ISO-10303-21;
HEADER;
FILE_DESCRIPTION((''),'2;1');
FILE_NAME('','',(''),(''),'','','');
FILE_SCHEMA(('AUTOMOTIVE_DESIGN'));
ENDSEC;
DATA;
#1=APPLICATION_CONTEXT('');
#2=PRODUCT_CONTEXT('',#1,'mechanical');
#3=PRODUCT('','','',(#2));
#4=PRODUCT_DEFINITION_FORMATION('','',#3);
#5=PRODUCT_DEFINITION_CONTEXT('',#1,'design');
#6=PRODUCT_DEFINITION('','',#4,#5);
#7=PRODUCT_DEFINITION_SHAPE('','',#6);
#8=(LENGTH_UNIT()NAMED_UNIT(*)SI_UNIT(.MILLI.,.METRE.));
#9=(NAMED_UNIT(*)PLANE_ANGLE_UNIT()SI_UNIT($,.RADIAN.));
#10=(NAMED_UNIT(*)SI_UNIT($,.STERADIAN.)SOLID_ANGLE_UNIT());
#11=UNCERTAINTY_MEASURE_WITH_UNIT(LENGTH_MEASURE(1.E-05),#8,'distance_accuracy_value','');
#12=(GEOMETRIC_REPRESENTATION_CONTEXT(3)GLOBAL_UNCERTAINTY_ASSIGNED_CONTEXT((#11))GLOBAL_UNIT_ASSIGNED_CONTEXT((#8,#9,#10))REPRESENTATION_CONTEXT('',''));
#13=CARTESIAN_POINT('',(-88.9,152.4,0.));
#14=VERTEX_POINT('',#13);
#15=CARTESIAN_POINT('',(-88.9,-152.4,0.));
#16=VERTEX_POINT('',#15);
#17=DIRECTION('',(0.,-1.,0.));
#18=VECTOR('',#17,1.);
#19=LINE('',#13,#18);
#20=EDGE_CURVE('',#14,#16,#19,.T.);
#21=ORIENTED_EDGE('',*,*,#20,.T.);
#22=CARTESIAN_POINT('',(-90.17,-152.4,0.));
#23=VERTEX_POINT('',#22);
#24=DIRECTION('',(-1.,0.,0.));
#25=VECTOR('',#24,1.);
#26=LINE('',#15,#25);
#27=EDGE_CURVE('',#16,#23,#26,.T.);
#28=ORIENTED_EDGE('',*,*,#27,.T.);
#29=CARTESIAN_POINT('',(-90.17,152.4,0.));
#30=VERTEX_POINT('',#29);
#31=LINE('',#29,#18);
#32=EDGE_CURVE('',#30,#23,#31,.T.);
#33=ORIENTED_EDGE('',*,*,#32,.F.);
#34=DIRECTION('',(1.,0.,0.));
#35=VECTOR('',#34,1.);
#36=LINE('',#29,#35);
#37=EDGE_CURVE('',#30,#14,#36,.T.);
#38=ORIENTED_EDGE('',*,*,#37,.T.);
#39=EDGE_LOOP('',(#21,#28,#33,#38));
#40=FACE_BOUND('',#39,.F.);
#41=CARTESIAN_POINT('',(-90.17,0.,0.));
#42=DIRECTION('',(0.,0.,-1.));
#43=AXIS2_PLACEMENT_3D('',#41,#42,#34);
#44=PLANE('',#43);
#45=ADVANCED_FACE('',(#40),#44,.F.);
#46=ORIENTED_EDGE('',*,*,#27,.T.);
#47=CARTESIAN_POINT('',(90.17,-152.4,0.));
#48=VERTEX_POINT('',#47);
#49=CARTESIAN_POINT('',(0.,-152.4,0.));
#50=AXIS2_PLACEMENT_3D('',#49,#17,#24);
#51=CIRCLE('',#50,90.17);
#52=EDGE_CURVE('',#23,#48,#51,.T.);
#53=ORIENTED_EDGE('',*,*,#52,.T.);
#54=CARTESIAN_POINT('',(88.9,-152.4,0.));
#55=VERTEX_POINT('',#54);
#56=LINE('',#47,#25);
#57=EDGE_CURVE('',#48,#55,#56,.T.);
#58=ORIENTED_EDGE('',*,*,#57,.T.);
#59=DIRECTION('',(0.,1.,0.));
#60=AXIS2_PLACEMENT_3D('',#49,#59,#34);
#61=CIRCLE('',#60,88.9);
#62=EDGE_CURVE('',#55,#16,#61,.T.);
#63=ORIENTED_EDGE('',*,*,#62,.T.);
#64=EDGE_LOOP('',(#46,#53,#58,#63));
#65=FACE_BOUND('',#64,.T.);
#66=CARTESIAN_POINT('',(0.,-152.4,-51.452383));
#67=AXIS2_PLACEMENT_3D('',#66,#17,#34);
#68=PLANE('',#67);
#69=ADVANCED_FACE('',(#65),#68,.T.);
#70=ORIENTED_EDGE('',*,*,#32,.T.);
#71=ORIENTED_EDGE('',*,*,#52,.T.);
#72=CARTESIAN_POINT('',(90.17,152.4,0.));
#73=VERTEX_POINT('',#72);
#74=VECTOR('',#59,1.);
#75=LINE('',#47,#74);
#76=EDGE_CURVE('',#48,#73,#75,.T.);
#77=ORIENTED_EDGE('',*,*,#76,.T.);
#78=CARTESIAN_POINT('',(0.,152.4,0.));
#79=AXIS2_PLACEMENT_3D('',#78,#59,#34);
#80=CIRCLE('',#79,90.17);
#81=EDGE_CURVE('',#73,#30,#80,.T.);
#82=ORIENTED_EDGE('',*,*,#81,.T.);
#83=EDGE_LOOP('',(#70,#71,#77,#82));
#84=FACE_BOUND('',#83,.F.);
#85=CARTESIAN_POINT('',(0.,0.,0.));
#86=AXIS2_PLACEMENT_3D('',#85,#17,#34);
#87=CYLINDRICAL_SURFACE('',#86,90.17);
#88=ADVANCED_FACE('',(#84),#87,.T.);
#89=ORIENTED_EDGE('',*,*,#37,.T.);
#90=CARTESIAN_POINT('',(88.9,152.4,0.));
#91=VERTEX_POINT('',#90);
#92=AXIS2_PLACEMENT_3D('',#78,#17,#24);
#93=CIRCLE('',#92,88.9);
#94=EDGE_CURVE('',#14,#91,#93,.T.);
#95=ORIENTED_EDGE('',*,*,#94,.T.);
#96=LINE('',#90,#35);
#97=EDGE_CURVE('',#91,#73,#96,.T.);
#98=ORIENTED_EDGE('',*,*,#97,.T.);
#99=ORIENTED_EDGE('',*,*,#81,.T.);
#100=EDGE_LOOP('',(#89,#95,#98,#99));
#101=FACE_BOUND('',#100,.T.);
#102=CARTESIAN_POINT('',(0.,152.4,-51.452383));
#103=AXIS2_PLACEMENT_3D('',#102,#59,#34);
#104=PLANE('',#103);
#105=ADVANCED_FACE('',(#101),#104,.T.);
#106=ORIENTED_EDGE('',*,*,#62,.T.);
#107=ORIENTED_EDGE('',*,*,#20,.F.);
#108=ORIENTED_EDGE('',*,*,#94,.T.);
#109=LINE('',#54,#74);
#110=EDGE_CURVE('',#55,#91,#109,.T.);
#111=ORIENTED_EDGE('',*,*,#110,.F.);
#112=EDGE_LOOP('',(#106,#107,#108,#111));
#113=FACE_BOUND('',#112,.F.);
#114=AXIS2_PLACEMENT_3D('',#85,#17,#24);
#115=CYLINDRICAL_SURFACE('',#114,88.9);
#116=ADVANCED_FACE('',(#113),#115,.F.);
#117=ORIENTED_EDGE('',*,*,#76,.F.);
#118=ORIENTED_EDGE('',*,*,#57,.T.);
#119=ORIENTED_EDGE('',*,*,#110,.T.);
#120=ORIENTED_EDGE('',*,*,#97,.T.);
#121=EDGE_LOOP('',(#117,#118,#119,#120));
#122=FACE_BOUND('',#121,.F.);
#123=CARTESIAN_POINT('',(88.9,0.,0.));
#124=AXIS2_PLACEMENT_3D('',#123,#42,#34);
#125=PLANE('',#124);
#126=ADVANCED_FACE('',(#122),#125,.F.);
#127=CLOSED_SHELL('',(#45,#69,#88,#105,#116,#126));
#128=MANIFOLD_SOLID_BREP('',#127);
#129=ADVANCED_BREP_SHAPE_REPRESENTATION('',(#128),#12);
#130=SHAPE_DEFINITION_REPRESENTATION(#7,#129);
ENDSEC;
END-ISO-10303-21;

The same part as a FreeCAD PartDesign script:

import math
import FreeCAD as App
import Part
import Sketcher
Q = App.Units.Quantity

doc = App.newDocument("Part")
body = doc.addObject("PartDesign::Body", "Body")

# Sketch on XZ plane
sketch1 = doc.addObject("Sketcher::SketchObject", "Sketch")
body.addObject(sketch1)
sketch1.AttachmentSupport = (doc.XZ_Plane, [""])
sketch1.MapMode = "FlatFace"
sketch1.addGeometry([
    Part.LineSegment(App.Vector(-88.9, 0, 0), App.Vector(-90.2, 0, 0)),
    Part.ArcOfCircle(Part.Circle(App.Vector(0, 0, 0), App.Vector(0, 0, 1), 90.2), math.radians(180), math.radians(360)),
    Part.LineSegment(App.Vector(90.2, 0, 0), App.Vector(88.9, 0, 0)),
    Part.ArcOfCircle(Part.Circle(App.Vector(0, 0, 0), App.Vector(0, 0, 1), 88.9), math.radians(180), math.radians(360)),
], False)
sketch1.addConstraint([
    Sketcher.Constraint("Coincident", 0, 2, 1, 1),
    Sketcher.Constraint("Coincident", 1, 2, 2, 1),
    Sketcher.Constraint("Coincident", 2, 2, 3, 2),
    Sketcher.Constraint("Coincident", 3, 1, 0, 1),
    Sketcher.Constraint("Horizontal", 0),
    Sketcher.Constraint("Horizontal", 2),
    Sketcher.Constraint("Coincident", 1, 3, -1, 1),
    Sketcher.Constraint("Coincident", 3, 3, -1, 1),
    Sketcher.Constraint("PointOnObject", 0, 2, -1),
    Sketcher.Constraint("PointOnObject", 1, 2, -1),
    Sketcher.Constraint("Radius", 3, Q("3.5 in")),
    Sketcher.Constraint("Radius", 1, Q("3.55 in")),
])
pad1 = doc.addObject("PartDesign::Pad", "Pad")
body.addObject(pad1)
pad1.Profile = sketch1
pad1.Length = Q("6 in")

# Sketch on XZ plane
sketch2 = doc.addObject("Sketcher::SketchObject", "Sketch001")
body.addObject(sketch2)
sketch2.AttachmentSupport = (doc.XZ_Plane, [""])
sketch2.MapMode = "FlatFace"
sketch2.addGeometry([
    Part.ArcOfCircle(Part.Circle(App.Vector(0, 0, 0), App.Vector(0, 0, 1), 88.9), math.radians(180), math.radians(360)),
    Part.LineSegment(App.Vector(88.9, 0, 0), App.Vector(90.2, 0, 0)),
    Part.ArcOfCircle(Part.Circle(App.Vector(0, 0, 0), App.Vector(0, 0, 1), 90.2), math.radians(180), math.radians(360)),
    Part.LineSegment(App.Vector(-90.2, 0, 0), App.Vector(-88.9, 0, 0)),
], False)
sketch2.addConstraint([
    Sketcher.Constraint("Coincident", 0, 2, 1, 1),
    Sketcher.Constraint("Coincident", 1, 2, 2, 2),
    Sketcher.Constraint("Coincident", 2, 1, 3, 1),
    Sketcher.Constraint("Coincident", 3, 2, 0, 1),
    Sketcher.Constraint("Horizontal", 1),
    Sketcher.Constraint("Horizontal", 3),
    Sketcher.Constraint("Coincident", 0, 3, -1, 1),
    Sketcher.Constraint("Coincident", 2, 3, -1, 1),
    Sketcher.Constraint("PointOnObject", 0, 2, -1),
    Sketcher.Constraint("PointOnObject", 2, 1, -1),
    Sketcher.Constraint("Radius", 0, Q("3.5 in")),
    Sketcher.Constraint("Radius", 2, Q("3.55 in")),
])
pad2 = doc.addObject("PartDesign::Pad", "Pad001")
body.addObject(pad2)
pad2.Profile = sketch2
pad2.Length = Q("6 in")
pad2.Reversed = True

doc.recompute()
